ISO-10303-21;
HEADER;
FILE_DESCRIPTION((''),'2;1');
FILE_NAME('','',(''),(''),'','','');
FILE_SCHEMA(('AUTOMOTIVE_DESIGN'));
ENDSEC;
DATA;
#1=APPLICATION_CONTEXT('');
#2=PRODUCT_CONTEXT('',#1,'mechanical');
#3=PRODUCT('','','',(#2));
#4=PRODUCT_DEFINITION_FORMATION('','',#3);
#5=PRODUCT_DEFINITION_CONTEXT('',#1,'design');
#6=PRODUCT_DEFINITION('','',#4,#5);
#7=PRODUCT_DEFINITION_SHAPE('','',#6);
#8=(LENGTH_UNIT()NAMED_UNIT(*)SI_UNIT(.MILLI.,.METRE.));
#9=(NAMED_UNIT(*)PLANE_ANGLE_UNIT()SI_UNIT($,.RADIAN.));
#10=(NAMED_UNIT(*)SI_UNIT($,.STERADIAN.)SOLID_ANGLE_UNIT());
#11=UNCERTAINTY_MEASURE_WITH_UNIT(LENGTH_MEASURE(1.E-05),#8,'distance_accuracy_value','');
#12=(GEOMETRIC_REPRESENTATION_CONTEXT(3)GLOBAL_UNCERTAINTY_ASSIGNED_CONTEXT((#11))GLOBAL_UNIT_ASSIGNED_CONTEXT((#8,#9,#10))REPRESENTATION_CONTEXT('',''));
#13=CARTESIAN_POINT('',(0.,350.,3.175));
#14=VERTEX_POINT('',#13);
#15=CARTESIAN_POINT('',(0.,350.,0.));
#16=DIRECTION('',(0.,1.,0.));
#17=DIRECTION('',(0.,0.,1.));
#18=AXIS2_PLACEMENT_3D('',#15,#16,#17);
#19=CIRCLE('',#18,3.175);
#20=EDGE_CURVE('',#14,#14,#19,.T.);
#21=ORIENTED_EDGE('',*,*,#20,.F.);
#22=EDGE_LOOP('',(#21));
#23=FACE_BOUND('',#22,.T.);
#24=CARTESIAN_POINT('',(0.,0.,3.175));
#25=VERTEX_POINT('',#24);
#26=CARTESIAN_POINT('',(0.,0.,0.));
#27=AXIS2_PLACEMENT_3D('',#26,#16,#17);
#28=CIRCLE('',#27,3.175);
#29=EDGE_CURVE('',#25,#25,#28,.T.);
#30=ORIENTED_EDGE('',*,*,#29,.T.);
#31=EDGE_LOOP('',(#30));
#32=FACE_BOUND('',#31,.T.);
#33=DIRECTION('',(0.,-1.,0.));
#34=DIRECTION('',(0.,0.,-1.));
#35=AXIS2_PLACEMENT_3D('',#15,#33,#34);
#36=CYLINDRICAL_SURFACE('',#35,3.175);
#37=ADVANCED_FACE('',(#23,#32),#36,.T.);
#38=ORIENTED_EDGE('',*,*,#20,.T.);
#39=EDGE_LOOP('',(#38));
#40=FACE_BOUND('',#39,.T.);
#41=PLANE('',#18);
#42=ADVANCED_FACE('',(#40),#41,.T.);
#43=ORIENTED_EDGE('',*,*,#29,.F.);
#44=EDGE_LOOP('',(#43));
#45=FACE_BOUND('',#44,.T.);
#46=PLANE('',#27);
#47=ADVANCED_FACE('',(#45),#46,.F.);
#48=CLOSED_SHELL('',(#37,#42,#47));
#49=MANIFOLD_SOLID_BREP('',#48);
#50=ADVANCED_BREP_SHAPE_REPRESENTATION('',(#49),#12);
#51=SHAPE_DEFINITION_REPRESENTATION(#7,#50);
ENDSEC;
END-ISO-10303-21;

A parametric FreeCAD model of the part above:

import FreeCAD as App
import Part
import Sketcher
Q = App.Units.Quantity

doc = App.newDocument("Part")
params = doc.addObject("Spreadsheet::Sheet", "Params")
for row, (alias, value) in enumerate([
    ("sketch1_diameter", "6.35 mm"),
    ("pad1_length", "350 mm"),
], start=1):
    params.set(f"A{row}", alias)
    params.set(f"B{row}", "=" + value)
    params.setAlias(f"B{row}", alias)

body = doc.addObject("PartDesign::Body", "Body")

sketch1 = body.newObject("Sketcher::SketchObject", "Sketch")
sketch1.AttachmentSupport = (doc.getObject("XZ_Plane"), [""])
sketch1.MapMode = "FlatFace"
sketch1.addGeometry(Part.Circle(App.Vector(0, 0, 0), App.Vector(0, 0, 1), 3.2), False)
sketch1.addConstraint([
    Sketcher.Constraint("Coincident", 0, 3, -1, 1),
    Sketcher.Constraint("Diameter", 0, Q("6.35 mm")),
])
sketch1.setExpression("Constraints[1]", "Params.sketch1_diameter")
pad1 = body.newObject("PartDesign::Pad", "Pad")
pad1.Profile = sketch1
pad1.setExpression("Length", "Params.pad1_length")
pad1.Reversed = True

doc.recompute()
